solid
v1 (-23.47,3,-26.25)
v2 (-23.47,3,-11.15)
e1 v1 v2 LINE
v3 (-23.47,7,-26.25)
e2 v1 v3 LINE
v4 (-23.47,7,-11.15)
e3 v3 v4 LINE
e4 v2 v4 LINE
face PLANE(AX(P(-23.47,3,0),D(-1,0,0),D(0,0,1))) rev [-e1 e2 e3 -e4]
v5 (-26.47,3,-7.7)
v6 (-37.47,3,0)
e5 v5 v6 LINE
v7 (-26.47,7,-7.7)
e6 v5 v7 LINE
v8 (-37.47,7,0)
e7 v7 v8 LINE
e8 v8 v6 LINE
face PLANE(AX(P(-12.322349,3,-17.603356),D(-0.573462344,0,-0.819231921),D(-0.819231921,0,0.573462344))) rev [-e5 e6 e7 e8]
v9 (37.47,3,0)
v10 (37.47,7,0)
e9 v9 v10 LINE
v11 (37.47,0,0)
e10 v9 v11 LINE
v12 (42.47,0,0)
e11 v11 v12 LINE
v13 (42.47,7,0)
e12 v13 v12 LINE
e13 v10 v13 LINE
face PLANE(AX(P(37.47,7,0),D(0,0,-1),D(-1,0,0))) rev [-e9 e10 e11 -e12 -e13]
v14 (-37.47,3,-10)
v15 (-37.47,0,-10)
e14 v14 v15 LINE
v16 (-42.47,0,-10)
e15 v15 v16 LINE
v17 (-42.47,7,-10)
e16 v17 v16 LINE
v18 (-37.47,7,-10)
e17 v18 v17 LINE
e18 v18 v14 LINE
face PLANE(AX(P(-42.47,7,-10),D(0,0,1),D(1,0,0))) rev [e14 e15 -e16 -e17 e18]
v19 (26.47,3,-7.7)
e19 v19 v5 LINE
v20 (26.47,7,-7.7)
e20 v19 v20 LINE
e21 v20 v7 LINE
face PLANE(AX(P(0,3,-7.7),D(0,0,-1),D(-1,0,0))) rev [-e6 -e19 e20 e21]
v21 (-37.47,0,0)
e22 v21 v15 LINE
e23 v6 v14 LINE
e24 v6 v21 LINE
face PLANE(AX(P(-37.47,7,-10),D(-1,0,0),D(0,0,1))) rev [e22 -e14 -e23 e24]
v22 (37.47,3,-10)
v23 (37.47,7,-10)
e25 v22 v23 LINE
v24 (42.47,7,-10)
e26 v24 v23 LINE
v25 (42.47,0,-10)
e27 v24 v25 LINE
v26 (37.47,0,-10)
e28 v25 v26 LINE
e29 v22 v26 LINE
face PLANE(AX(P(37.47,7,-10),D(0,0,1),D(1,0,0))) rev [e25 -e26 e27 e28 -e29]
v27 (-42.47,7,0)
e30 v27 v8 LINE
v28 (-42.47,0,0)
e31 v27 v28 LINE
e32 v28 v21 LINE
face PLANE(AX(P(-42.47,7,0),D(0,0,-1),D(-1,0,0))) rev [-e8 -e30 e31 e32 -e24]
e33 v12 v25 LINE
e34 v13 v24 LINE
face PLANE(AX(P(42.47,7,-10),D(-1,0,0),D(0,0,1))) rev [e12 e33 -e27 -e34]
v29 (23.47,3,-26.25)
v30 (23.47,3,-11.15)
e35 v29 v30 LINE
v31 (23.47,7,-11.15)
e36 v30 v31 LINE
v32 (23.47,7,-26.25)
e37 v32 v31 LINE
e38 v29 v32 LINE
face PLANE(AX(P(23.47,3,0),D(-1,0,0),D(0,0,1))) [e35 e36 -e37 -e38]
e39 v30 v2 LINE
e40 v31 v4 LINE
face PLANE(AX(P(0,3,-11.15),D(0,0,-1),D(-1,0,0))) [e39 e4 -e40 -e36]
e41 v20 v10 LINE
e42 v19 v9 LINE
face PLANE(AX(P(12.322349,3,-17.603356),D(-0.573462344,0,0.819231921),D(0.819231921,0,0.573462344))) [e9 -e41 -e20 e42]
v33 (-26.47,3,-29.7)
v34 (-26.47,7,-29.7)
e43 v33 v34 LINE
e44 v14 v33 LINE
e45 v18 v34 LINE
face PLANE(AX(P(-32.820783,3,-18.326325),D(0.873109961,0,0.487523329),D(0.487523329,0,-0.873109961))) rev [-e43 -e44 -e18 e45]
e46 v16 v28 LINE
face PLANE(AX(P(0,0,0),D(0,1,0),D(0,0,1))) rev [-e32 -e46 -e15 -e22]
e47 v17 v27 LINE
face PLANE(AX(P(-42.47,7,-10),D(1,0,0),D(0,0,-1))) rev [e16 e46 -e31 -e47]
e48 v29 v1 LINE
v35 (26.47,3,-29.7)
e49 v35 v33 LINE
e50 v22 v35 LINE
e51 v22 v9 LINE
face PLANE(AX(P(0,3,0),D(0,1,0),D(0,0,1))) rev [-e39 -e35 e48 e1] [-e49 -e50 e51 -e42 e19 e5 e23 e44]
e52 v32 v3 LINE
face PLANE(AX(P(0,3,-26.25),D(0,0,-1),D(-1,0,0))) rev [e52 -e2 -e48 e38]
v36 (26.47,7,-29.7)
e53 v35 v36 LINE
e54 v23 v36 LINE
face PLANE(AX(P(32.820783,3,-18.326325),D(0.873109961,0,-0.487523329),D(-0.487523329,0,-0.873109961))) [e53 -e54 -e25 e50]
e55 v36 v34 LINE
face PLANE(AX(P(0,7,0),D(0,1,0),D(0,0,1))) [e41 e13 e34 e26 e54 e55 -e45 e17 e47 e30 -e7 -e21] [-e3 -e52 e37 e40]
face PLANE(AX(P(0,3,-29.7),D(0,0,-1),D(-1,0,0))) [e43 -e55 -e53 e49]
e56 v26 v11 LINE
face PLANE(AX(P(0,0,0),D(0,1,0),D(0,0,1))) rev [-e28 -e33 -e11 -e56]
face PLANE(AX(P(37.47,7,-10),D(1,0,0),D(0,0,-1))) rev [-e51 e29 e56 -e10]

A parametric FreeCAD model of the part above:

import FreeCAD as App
import Part
import Sketcher

doc = App.newDocument("Part")
body = doc.addObject("PartDesign::Body", "Body")

sketch1 = doc.addObject("Sketcher::SketchObject", "Sketch")
body.addObject(sketch1)
sketch1.AttachmentSupport = (doc.XZ_Plane, [""])
sketch1.MapMode = "FlatFace"
sketch1.addGeometry(Part.LineSegment(App.Vector(-42, -10, 0), App.Vector(-42, 0, 0)), False)
sketch1.addGeometry(Part.LineSegment(App.Vector(-42, 0, 0), App.Vector(-37, 0, 0)), False)
sketch1.addGeometry(Part.LineSegment(App.Vector(-37, 0, 0), App.Vector(-37, -10, 0)), False)
sketch1.addGeometry(Part.LineSegment(App.Vector(-37, -10, 0), App.Vector(-42, -10, 0)), False)
sketch1.addConstraint(Sketcher.Constraint("Coincident", 0, 2, 1, 1))
sketch1.addConstraint(Sketcher.Constraint("Coincident", 1, 2, 2, 1))
sketch1.addConstraint(Sketcher.Constraint("Coincident", 2, 2, 3, 1))
sketch1.addConstraint(Sketcher.Constraint("Coincident", 3, 2, 0, 1))
sketch1.addConstraint(Sketcher.Constraint("Vertical", 0))
sketch1.addConstraint(Sketcher.Constraint("Horizontal", 1))
sketch1.addConstraint(Sketcher.Constraint("Vertical", 2))
sketch1.addConstraint(Sketcher.Constraint("Horizontal", 3))
sketch1.addConstraint(Sketcher.Constraint("PointOnObject", 0, 2, -1))
sketch1.addConstraint(Sketcher.Constraint("DistanceX", 1, 1, 1, 2, 5.0))
sketch1.addConstraint(Sketcher.Constraint("DistanceY", 0, 1, 0, 2, 10.0))
sketch1.addConstraint(Sketcher.Constraint("DistanceX", 0, 2, -1, 1, 42.47))
pad1 = doc.addObject("PartDesign::Pad", "Pad")
body.addObject(pad1)
pad1.Profile = sketch1
pad1.Length = 7
pad1.Reversed = True
body2 = doc.addObject("PartDesign::Body", "Body001")

sketch2 = doc.addObject("Sketcher::SketchObject", "Sketch001")
body2.addObject(sketch2)
sketch2.AttachmentSupport = (doc.getObject("XZ_Plane001"), [""])
sketch2.MapMode = "FlatFace"
sketch2.addGeometry(Part.LineSegment(App.Vector(37, -10, 0), App.Vector(37, 0, 0)), False)
sketch2.addGeometry(Part.LineSegment(App.Vector(37, 0, 0), App.Vector(42, 0, 0)), False)
sketch2.addGeometry(Part.LineSegment(App.Vector(42, 0, 0), App.Vector(42, -10, 0)), False)
sketch2.addGeometry(Part.LineSegment(App.Vector(42, -10, 0), App.Vector(37, -10, 0)), False)
sketch2.addConstraint(Sketcher.Constraint("Coincident", 0, 2, 1, 1))
sketch2.addConstraint(Sketcher.Constraint("Coincident", 1, 2, 2, 1))
sketch2.addConstraint(Sketcher.Constraint("Coincident", 2, 2, 3, 1))
sketch2.addConstraint(Sketcher.Constraint("Coincident", 3, 2, 0, 1))
sketch2.addConstraint(Sketcher.Constraint("Vertical", 0))
sketch2.addConstraint(Sketcher.Constraint("Horizontal", 1))
sketch2.addConstraint(Sketcher.Constraint("Vertical", 2))
sketch2.addConstraint(Sketcher.Constraint("Horizontal", 3))
sketch2.addConstraint(Sketcher.Constraint("PointOnObject", 0, 2, -1))
sketch2.addConstraint(Sketcher.Constraint("DistanceX", 1, 1, 1, 2, 5.0))
sketch2.addConstraint(Sketcher.Constraint("DistanceY", 0, 1, 0, 2, 10.0))
sketch2.addConstraint(Sketcher.Constraint("DistanceX", -1, 1, 0, 2, 37.47))
pad2 = doc.addObject("PartDesign::Pad", "Pad001")
body2.addObject(pad2)
pad2.Profile = sketch2
pad2.Length = 7
pad2.Reversed = True
body.AllowCompound = True
doc.recompute()

boolean = doc.addObject("PartDesign::Boolean", "Boolean")
body.addObject(boolean)
boolean.Type = "Fuse"
boolean.addObjects([body2])

sketch3 = doc.addObject("Sketcher::SketchObject", "Sketch002")
body.addObject(sketch3)
sketch3.AttachmentSupport = (doc.XZ_Plane, [""])
sketch3.MapMode = "FlatFace"
sketch3.AttachmentOffset = App.Placement(App.Vector(0, 0, -7), App.Rotation())
sketch3.addGeometry(Part.LineSegment(App.Vector(-26, -30, 0), App.Vector(-37, -10, 0)), False)
sketch3.addGeometry(Part.LineSegment(App.Vector(-37, -10, 0), App.Vector(-37, 0, 0)), False)
sketch3.addGeometry(Part.LineSegment(App.Vector(-37, 0, 0), App.Vector(-26, -8, 0)), False)
sketch3.addGeometry(Part.LineSegment(App.Vector(-26, -8, 0), App.Vector(26, -8, 0)), False)
sketch3.addGeometry(Part.LineSegment(App.Vector(26, -8, 0), App.Vector(37, 0, 0)), False)
sketch3.addGeometry(Part.LineSegment(App.Vector(37, 0, 0), App.Vector(37, -10, 0)), False)
sketch3.addGeometry(Part.LineSegment(App.Vector(37, -10, 0), App.Vector(26, -30, 0)), False)
sketch3.addGeometry(Part.LineSegment(App.Vector(26, -30, 0), App.Vector(-26, -30, 0)), False)
sketch3.addGeometry(Part.LineSegment(App.Vector(23, -11, 0), App.Vector(-23, -11, 0)), False)
sketch3.addGeometry(Part.LineSegment(App.Vector(-23, -11, 0), App.Vector(-23, -26, 0)), False)
sketch3.addGeometry(Part.LineSegment(App.Vector(-23, -26, 0), App.Vector(23, -26, 0)), False)
sketch3.addGeometry(Part.LineSegment(App.Vector(23, -26, 0), App.Vector(23, -11, 0)), False)
sketch3.addConstraint(Sketcher.Constraint("Coincident", 0, 2, 1, 1))
sketch3.addConstraint(Sketcher.Constraint("Coincident", 1, 2, 2, 1))
sketch3.addConstraint(Sketcher.Constraint("Coincident", 2, 2, 3, 1))
sketch3.addConstraint(Sketcher.Constraint("Coincident", 3, 2, 4, 1))
sketch3.addConstraint(Sketcher.Constraint("Coincident", 4, 2, 5, 1))
sketch3.addConstraint(Sketcher.Constraint("Coincident", 5, 2, 6, 1))
sketch3.addConstraint(Sketcher.Constraint("Coincident", 6, 2, 7, 1))
sketch3.addConstraint(Sketcher.Constraint("Coincident", 7, 2, 0, 1))
sketch3.addConstraint(Sketcher.Constraint("Coincident", 8, 2, 9, 1))
sketch3.addConstraint(Sketcher.Constraint("Coincident", 9, 2, 10, 1))
sketch3.addConstraint(Sketcher.Constraint("Coincident", 10, 2, 11, 1))
sketch3.addConstraint(Sketcher.Constraint("Coincident", 11, 2, 8, 1))
sketch3.addConstraint(Sketcher.Constraint("Vertical", 1))
sketch3.addConstraint(Sketcher.Constraint("Horizontal", 3))
sketch3.addConstraint(Sketcher.Constraint("Vertical", 5))
sketch3.addConstraint(Sketcher.Constraint("Horizontal", 7))
sketch3.addConstraint(Sketcher.Constraint("Horizontal", 8))
sketch3.addConstraint(Sketcher.Constraint("Vertical", 9))
sketch3.addConstraint(Sketcher.Constraint("Horizontal", 10))
sketch3.addConstraint(Sketcher.Constraint("Vertical", 11))
sketch3.addConstraint(Sketcher.Constraint("Symmetric", 1, 2, 4, 2, -1, 1))
sketch3.addConstraint(Sketcher.Constraint("PointOnObject", 1, 2, -1))
sketch3.addConstraint(Sketcher.Constraint("Horizontal", 0, 2, 5, 2))
sketch3.addConstraint(Sketcher.Constraint("Vertical", 3, 2, 6, 2))
sketch3.addConstraint(Sketcher.Constraint("Vertical", 2, 2, 7, 2))
sketch3.addConstraint(Sketcher.Constraint("Equal", 2, 4))
sketch3.addConstraint(Sketcher.Constraint("DistanceY", 1, 1, 1, 2, 10.0))
sketch3.addConstraint(Sketcher.Constraint("DistanceY", 9, 2, 9, 1, 15.1))
sketch3.addConstraint(Sketcher.Constraint("DistanceX", 0, 2, 2, 2, 11.0))
sketch3.addConstraint(Sketcher.Constraint("DistanceY", 6, 2, 3, 2, 22.0))
sketch3.addConstraint(Sketcher.Constraint("DistanceX", 2, 2, 8, 2, 3.0))
sketch3.addConstraint(Sketcher.Constraint("DistanceX", 10, 2, 6, 2, 3.0))
sketch3.addConstraint(Sketcher.Constraint("DistanceX", 3, 1, 3, 2, 52.94))
sketch3.addConstraint(Sketcher.Constraint("DistanceY", 2, 2, -1, 1, 7.7))
sketch3.addConstraint(Sketcher.Constraint("DistanceY", 8, 2, -1, 1, 11.15))
pad3 = doc.addObject("PartDesign::Pad", "Pad002")
body.addObject(pad3)
pad3.Profile = sketch3
pad3.Length = 4

doc.recompute()
